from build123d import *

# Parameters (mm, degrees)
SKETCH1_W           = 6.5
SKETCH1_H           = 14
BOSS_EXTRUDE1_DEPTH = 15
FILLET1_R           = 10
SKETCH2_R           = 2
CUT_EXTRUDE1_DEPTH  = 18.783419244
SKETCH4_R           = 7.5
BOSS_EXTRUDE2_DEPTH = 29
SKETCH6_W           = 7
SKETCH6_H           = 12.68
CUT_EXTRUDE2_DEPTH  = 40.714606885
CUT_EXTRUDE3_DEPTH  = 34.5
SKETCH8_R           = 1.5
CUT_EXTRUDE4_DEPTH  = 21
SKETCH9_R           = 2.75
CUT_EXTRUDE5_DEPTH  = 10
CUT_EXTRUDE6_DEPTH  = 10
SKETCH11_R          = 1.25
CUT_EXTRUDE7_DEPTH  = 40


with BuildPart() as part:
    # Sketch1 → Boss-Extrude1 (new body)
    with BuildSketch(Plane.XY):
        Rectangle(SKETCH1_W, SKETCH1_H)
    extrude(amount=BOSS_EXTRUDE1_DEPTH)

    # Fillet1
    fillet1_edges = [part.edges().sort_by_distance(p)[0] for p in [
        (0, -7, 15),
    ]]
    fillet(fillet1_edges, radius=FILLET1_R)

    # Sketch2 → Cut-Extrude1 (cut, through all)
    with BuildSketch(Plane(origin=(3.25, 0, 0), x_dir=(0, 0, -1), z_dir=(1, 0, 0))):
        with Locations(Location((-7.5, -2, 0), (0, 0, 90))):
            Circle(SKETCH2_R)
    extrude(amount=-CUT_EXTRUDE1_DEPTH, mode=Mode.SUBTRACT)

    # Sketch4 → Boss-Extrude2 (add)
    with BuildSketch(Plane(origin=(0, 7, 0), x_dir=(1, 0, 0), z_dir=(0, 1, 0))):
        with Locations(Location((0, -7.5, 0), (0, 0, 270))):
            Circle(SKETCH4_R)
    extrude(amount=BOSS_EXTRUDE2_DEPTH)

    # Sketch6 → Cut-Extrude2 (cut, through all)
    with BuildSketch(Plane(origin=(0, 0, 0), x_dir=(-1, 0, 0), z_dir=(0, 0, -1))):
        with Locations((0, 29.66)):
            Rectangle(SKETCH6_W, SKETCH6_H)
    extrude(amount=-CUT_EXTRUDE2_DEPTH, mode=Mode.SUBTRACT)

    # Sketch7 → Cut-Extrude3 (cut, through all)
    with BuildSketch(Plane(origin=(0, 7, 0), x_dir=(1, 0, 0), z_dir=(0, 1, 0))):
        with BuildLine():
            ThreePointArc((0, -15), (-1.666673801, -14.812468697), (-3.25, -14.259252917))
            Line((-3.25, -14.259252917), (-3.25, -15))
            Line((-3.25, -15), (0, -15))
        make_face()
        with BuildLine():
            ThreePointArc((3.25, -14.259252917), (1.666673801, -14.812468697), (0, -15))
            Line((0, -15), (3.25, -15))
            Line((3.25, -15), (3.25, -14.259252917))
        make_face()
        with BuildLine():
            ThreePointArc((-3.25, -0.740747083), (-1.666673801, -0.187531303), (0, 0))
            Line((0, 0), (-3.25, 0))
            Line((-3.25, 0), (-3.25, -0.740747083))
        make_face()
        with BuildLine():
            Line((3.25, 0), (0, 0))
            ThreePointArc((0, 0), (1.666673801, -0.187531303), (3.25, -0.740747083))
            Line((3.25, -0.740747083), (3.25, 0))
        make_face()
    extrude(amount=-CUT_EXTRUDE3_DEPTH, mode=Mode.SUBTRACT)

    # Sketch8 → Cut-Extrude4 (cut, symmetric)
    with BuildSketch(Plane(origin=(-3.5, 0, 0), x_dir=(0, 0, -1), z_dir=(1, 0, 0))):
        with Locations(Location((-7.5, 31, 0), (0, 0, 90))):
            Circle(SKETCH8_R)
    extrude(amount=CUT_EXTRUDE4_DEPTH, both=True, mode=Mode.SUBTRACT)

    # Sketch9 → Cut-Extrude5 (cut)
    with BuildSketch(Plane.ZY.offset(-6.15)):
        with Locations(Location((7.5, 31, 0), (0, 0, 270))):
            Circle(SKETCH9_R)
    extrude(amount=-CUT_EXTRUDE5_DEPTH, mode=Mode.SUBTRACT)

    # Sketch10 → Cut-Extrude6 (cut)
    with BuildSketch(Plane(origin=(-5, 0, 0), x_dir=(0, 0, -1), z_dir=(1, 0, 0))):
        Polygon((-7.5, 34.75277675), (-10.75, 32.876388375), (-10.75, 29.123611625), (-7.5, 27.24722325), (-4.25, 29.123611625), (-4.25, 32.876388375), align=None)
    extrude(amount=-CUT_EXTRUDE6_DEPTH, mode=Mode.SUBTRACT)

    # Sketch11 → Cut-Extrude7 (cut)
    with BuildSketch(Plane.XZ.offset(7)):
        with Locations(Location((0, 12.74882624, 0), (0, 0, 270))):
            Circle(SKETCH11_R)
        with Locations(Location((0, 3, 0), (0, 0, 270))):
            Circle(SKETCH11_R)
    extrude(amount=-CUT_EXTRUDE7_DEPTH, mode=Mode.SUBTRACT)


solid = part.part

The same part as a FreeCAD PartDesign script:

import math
import FreeCAD as App
import Part
import Sketcher
from FreeCAD import Vector
Q = App.Units.Quantity


def edges_at(feature, points):
    """Names of the edges that pass closest to the given points."""
    edges = feature.Shape.Edges
    near = lambda p: min(range(len(edges)), key=lambda i: edges[i].distToShape(Part.Vertex(*p))[0])
    return sorted({f"Edge{near(p) + 1}" for p in points})


def add_polygon(sketch, points):
    """Adds a closed chain of lines whose ends are joined by coincident constraints."""
    first, n = sketch.GeometryCount, len(points)
    for a, b in zip(points, points[1:] + points[:1]):
        sketch.addGeometry(Part.LineSegment(App.Vector(*a, 0), App.Vector(*b, 0)), False)
    for i in range(n):
        sketch.addConstraint(Sketcher.Constraint("Coincident", first + i, 2, first + (i + 1) % n, 1))

doc = App.newDocument("Part")
body = doc.addObject("PartDesign::Body", "Body")

# Sketch on XY plane
sketch1 = body.newObject("Sketcher::SketchObject", "Sketch")
sketch1.AttachmentSupport = (doc.getObject("XY_Plane"), [""])
sketch1.MapMode = "FlatFace"
add_polygon(sketch1, [(-3, 7), (-3, -7), (3, -7), (3, 7)])  # lines 0-3
sketch1.addConstraint([
    Sketcher.Constraint("Vertical", 0),
    Sketcher.Constraint("Horizontal", 1),
    Sketcher.Constraint("Vertical", 2),
    Sketcher.Constraint("Horizontal", 3),
    Sketcher.Constraint("Symmetric", 0, 2, 2, 2, -1, 1),
    Sketcher.Constraint("DistanceY", 0, 2, 0, 1, Q("14 mm")),
    Sketcher.Constraint("DistanceX", 1, 1, 1, 2, Q("6.5 mm")),
])
pad1 = body.newObject("PartDesign::Pad", "Pad")
pad1.Profile = sketch1
pad1.Length = 15
doc.recompute()

fillet = body.newObject("PartDesign::Fillet", "Fillet")
fillet.Base = (pad1, edges_at(pad1, [(0, -7, 15)]))
fillet.Radius = 10

# Sketch on YZ plane
sketch2 = body.newObject("Sketcher::SketchObject", "Sketch001")
sketch2.AttachmentSupport = (doc.getObject("YZ_Plane"), [""])
sketch2.MapMode = "FlatFace"
sketch2.AttachmentOffset = App.Placement(Vector(0, 0, 3.25), App.Rotation())
sketch2.addGeometry(Part.Circle(Vector(-2, 7.5, 0), Vector(0, 0, 1), 2), False)
sketch2.addConstraint([
    Sketcher.Constraint("Diameter", 0, Q("4 mm")),
    Sketcher.Constraint("DistanceX", 0, 3, -1, 1, Q("2 mm")),
    Sketcher.Constraint("DistanceY", -1, 1, 0, 3, Q("7.5 mm")),
])
pocket1 = body.newObject("PartDesign::Pocket", "Pocket")
pocket1.Profile = sketch2
pocket1.Type = "ThroughAll"

# Sketch on XZ plane
sketch3 = body.newObject("Sketcher::SketchObject", "Sketch002")
sketch3.AttachmentSupport = (doc.getObject("XZ_Plane"), [""])
sketch3.MapMode = "FlatFace"
sketch3.AttachmentOffset = App.Placement(Vector(0, 0, -7), App.Rotation())
sketch3.addGeometry(Part.Circle(Vector(0, 8, 0), Vector(0, 0, 1), 8), False)
sketch3.addConstraint([
    Sketcher.Constraint("PointOnObject", 0, 3, -2),
    Sketcher.Constraint("Diameter", 0, Q("15 mm")),
    Sketcher.Constraint("DistanceY", -1, 1, 0, 3, Q("7.5 mm")),
])
pad2 = body.newObject("PartDesign::Pad", "Pad001")
pad2.Profile = sketch3
pad2.Length = 29
pad2.Reversed = True

# Sketch on XY plane
sketch4 = body.newObject("Sketcher::SketchObject", "Sketch003")
sketch4.AttachmentSupport = (doc.getObject("XY_Plane"), [""])
sketch4.MapMode = "FlatFace"
add_polygon(sketch4, [(4, 36), (4, 23), (-4, 23), (-4, 36)])  # lines 0-3
sketch4.addConstraint([
    Sketcher.Constraint("Vertical", 0),
    Sketcher.Constraint("Horizontal", 1),
    Sketcher.Constraint("Vertical", 2),
    Sketcher.Constraint("Horizontal", 3),
    Sketcher.Constraint("DistanceX", 1, 2, 1, 1, Q("7 mm")),
    Sketcher.Constraint("DistanceY", -1, 1, 2, 2, Q("36 mm")),
    Sketcher.Constraint("DistanceY", 0, 2, 0, 1, Q("12.68 mm")),
    Sketcher.Constraint("DistanceX", -1, 1, 0, 2, Q("3.5 mm")),
])
pocket2 = body.newObject("PartDesign::Pocket", "Pocket001")
pocket2.Profile = sketch4
pocket2.Type = "ThroughAll"
pocket2.Reversed = True

# Sketch on XZ plane
sketch5 = body.newObject("Sketcher::SketchObject", "Sketch004")
sketch5.AttachmentSupport = (doc.getObject("XZ_Plane"), [""])
sketch5.MapMode = "FlatFace"
sketch5.AttachmentOffset = App.Placement(Vector(0, 0, -7), App.Rotation())
sketch5.addGeometry([
    Part.ArcOfCircle(Part.Circle(Vector(0, 7.5, 0), Vector(0, 0, 1), 7.5), math.radians(90), math.radians(116)),  # 0
    Part.LineSegment(Vector(-3.2, 14.3, 0), Vector(-3.2, 15, 0)),  # 1
    Part.LineSegment(Vector(-3.2, 15, 0), Vector(0, 15, 0)),  # 2
    Part.ArcOfCircle(Part.Circle(Vector(0, 7.5, 0), Vector(0, 0, 1), 7.5), math.radians(64), math.radians(90)),  # 3
    Part.LineSegment(Vector(0, 15, 0), Vector(3.2, 15, 0)),  # 4
    Part.LineSegment(Vector(3.2, 15, 0), Vector(3.2, 14.3, 0)),  # 5
    Part.ArcOfCircle(Part.Circle(Vector(0, 7.5, 0), Vector(0, 0, 1), 7.5), math.radians(-116), math.radians(-90)),  # 6
    Part.LineSegment(Vector(0, 0, 0), Vector(-3.2, 0, 0)),  # 7
    Part.LineSegment(Vector(-3.2, 0, 0), Vector(-3.2, 0.7, 0)),  # 8
    Part.LineSegment(Vector(3.2, 0, 0), Vector(0, 0, 0)),  # 9
    Part.ArcOfCircle(Part.Circle(Vector(0, 7.5, 0), Vector(0, 0, 1), 7.5), math.radians(-90), math.radians(-64)),  # 10
    Part.LineSegment(Vector(3.2, 0.7, 0), Vector(3.2, 0, 0)),  # 11
], False)
sketch5.addConstraint([
    Sketcher.Constraint("Coincident", 0, 2, 1, 1),
    Sketcher.Constraint("Coincident", 1, 2, 2, 1),
    Sketcher.Constraint("Tangent", 2, 2, 0, 1),
    Sketcher.Constraint("Tangent", 3, 2, 4, 1),
    Sketcher.Constraint("Coincident", 4, 2, 5, 1),
    Sketcher.Constraint("Coincident", 5, 2, 3, 1),
    Sketcher.Constraint("Tangent", 6, 2, 7, 1),
    Sketcher.Constraint("Coincident", 7, 2, 8, 1),
    Sketcher.Constraint("Coincident", 8, 2, 6, 1),
    Sketcher.Constraint("Tangent", 9, 2, 10, 1),
    Sketcher.Constraint("Coincident", 10, 2, 11, 1),
    Sketcher.Constraint("Coincident", 11, 2, 9, 1),
    Sketcher.Constraint("Vertical", 1),
    Sketcher.Constraint("Horizontal", 2),
    Sketcher.Constraint("Horizontal", 4),
    Sketcher.Constraint("Vertical", 5),
    Sketcher.Constraint("Horizontal", 7),
    Sketcher.Constraint("Vertical", 8),
    Sketcher.Constraint("Horizontal", 9),
    Sketcher.Constraint("Vertical", 11),
    Sketcher.Constraint("Coincident", 6, 2, -1, 1),
    Sketcher.Constraint("Coincident", 9, 2, -1, 1),
    Sketcher.Constraint("Coincident", 3, 3, 0, 3),
    Sketcher.Constraint("Coincident", 6, 3, 0, 3),
    Sketcher.Constraint("Equal", 0, 3),
    Sketcher.Constraint("Equal", 3, 6),
    Sketcher.Constraint("Equal", 6, 10),
    Sketcher.Constraint("Horizontal", 0, 2, 5, 2),
    Sketcher.Constraint("Horizontal", 8, 2, 10, 2),
    Sketcher.Constraint("Vertical", 1, 2, 7, 2),
    Sketcher.Constraint("Radius", 0, Q("7.5 mm")),
    Sketcher.Constraint("DistanceX", 2, 1, 2, 2, Q("3.25 mm")),
])
pocket3 = body.newObject("PartDesign::Pocket", "Pocket002")
pocket3.Profile = sketch5
pocket3.Type = "ThroughAll"
pocket3.Reversed = True

# Sketch on YZ plane
sketch6 = body.newObject("Sketcher::SketchObject", "Sketch005")
sketch6.AttachmentSupport = (doc.getObject("YZ_Plane"), [""])
sketch6.MapMode = "FlatFace"
sketch6.AttachmentOffset = App.Placement(Vector(0, 0, -3.5), App.Rotation())
sketch6.addGeometry(Part.Circle(Vector(31, 7.5, 0), Vector(0, 0, 1), 1.5), False)
sketch6.addConstraint([
    Sketcher.Constraint("Diameter", 0, Q("3 mm")),
    Sketcher.Constraint("DistanceX", -1, 1, 0, 3, Q("31 mm")),
    Sketcher.Constraint("DistanceY", -1, 1, 0, 3, Q("7.5 mm")),
])
pocket4 = body.newObject("PartDesign::Pocket", "Pocket003")
pocket4.Profile = sketch6
pocket4.Length = 42
pocket4.Midplane = True

# Sketch on YZ plane
sketch7 = body.newObject("Sketcher::SketchObject", "Sketch006")
sketch7.AttachmentSupport = (doc.getObject("YZ_Plane"), [""])
sketch7.MapMode = "FlatFace"
sketch7.AttachmentOffset = App.Placement(Vector(0, 0, 6.15), App.Rotation())
sketch7.addGeometry(Part.Circle(Vector(31, 7.5, 0), Vector(0, 0, 1), 2.8), False)
sketch7.addConstraint([
    Sketcher.Constraint("Diameter", 0, Q("5.5 mm")),
    Sketcher.Constraint("DistanceX", -1, 1, 0, 3, Q("31 mm")),
    Sketcher.Constraint("DistanceY", -1, 1, 0, 3, Q("7.5 mm")),
])
pocket5 = body.newObject("PartDesign::Pocket", "Pocket004")
pocket5.Profile = sketch7
pocket5.Length = 10
pocket5.Reversed = True

# Sketch on YZ plane
sketch8 = body.newObject("Sketcher::SketchObject", "Sketch007")
sketch8.AttachmentSupport = (doc.getObject("YZ_Plane"), [""])
sketch8.MapMode = "FlatFace"
sketch8.AttachmentOffset = App.Placement(Vector(0, 0, -5), App.Rotation())
add_polygon(sketch8, [(34.8, 7.5), (32.9, 10.8), (29.1, 10.8), (27.2, 7.5), (29.1, 4.2), (32.9, 4.2)])  # lines 0-5
sketch8.addConstraint([
    Sketcher.Constraint("Horizontal", 1),
    Sketcher.Constraint("Horizontal", 4),
    Sketcher.Constraint("Parallel", 0, 3),
    Sketcher.Constraint("Parallel", 2, 5),
    Sketcher.Constraint("Horizontal", 2, 2, 5, 2),
    Sketcher.Constraint("Vertical", 1, 2, 3, 2),
    Sketcher.Constraint("Vertical", 0, 2, 4, 2),
    Sketcher.Constraint("Angle", 0, Q("120 deg")),
    Sketcher.Constraint("DistanceY", -1, 1, 2, 2, Q("7.5 mm")),
    Sketcher.Constraint("DistanceY", 3, 2, 1, 2, Q("6.5 mm")),
    Sketcher.Constraint("DistanceX", 1, 2, 1, 1, Q("3.752777 mm")),
    Sketcher.Constraint("DistanceX", -1, 1, 0, 2, Q("32.876388 mm")),
])
pocket6 = body.newObject("PartDesign::Pocket", "Pocket005")
pocket6.Profile = sketch8
pocket6.Length = 10

# Sketch on XZ plane
sketch9 = body.newObject("Sketcher::SketchObject", "Sketch008")
sketch9.AttachmentSupport = (doc.getObject("XZ_Plane"), [""])
sketch9.MapMode = "FlatFace"
sketch9.AttachmentOffset = App.Placement(Vector(0, 0, 7), App.Rotation())
sketch9.addGeometry([
    Part.Circle(Vector(0, 12.7, 0), Vector(0, 0, 1), 1.2),
    Part.Circle(Vector(0, 3, 0), Vector(0, 0, 1), 1.2),
], False)
sketch9.addConstraint([
    Sketcher.Constraint("Equal", 0, 1),
    Sketcher.Constraint("PointOnObject", 0, 3, -2),
    Sketcher.Constraint("PointOnObject", 1, 3, -2),
    Sketcher.Constraint("Diameter", 0, Q("2.5 mm")),
    Sketcher.Constraint("DistanceY", -1, 1, 1, 3, Q("3 mm")),
    Sketcher.Constraint("DistanceY", -1, 1, 0, 3, Q("12.748826 mm")),
])
pocket7 = body.newObject("PartDesign::Pocket", "Pocket006")
pocket7.Profile = sketch9
pocket7.Length = 40

doc.recompute()
